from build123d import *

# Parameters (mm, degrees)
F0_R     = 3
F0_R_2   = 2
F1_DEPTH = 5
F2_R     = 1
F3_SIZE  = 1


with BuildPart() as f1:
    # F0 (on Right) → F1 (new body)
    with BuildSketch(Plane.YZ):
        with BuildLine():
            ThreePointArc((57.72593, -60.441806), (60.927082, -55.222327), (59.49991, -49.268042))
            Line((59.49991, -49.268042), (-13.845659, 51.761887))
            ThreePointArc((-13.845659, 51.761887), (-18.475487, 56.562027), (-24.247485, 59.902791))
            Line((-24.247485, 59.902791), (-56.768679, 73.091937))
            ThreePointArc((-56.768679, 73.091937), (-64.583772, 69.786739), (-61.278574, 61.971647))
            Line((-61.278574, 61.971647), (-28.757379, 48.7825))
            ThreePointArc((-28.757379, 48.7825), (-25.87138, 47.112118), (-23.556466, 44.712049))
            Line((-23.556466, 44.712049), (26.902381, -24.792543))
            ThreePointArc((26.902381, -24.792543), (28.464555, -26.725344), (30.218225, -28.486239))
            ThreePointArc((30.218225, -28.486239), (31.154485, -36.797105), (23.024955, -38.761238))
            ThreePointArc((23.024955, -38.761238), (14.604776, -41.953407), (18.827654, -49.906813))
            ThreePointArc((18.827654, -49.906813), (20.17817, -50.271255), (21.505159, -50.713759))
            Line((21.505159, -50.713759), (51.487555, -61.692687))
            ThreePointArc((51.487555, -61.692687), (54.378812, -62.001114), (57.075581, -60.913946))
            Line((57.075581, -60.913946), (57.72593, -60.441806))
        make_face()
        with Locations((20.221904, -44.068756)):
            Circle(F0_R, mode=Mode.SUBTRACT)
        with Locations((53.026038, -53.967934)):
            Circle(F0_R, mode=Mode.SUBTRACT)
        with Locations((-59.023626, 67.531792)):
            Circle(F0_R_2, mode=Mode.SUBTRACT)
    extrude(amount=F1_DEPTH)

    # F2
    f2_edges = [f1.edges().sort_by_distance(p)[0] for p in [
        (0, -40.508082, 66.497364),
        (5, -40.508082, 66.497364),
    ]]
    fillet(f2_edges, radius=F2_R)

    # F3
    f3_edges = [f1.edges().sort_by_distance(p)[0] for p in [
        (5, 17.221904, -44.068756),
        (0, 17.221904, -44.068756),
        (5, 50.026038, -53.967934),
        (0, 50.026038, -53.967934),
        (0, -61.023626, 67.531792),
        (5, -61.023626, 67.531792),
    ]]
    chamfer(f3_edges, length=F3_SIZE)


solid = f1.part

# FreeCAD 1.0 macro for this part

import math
import FreeCAD as App
import Part
import Sketcher
Q = App.Units.Quantity


def edges_at(feature, points):
    """Names of the edges that pass closest to the given points."""
    edges = feature.Shape.Edges
    near = lambda p: min(range(len(edges)), key=lambda i: edges[i].distToShape(Part.Vertex(*p))[0])
    return sorted({f"Edge{near(p) + 1}" for p in points})

doc = App.newDocument("Part")
body = doc.addObject("PartDesign::Body", "Body")

sketch1 = doc.addObject("Sketcher::SketchObject", "Sketch")
body.addObject(sketch1)
sketch1.AttachmentSupport = (doc.YZ_Plane, [""])
sketch1.MapMode = "FlatFace"
sketch1.addGeometry([
    Part.ArcOfCircle(Part.Circle(App.Vector(53.026037, -53.967934, 0), App.Vector(0, 0, 1), 8.000001), math.radians(-54.021151), math.radians(35.978838)),
    Part.LineSegment(App.Vector(59.49991, -49.268042, 0), App.Vector(-13.845659, 51.761887, 0)),
    Part.ArcOfCircle(Part.Circle(App.Vector(-33.267269, 37.662217, 0), App.Vector(0, 0, 1), 23.999992), math.radians(35.97884), math.radians(67.924721)),
    Part.LineSegment(App.Vector(-24.247485, 59.902791, 0), App.Vector(-56.768679, 73.091937, 0)),
    Part.ArcOfCircle(Part.Circle(App.Vector(-59.023627, 67.531792, 0), App.Vector(0, 0, 1), 6), math.radians(67.924711), math.radians(247.924717)),
    Part.LineSegment(App.Vector(-61.278574, 61.971647, 0), App.Vector(-28.757379, 48.7825, 0)),
    Part.ArcOfCircle(Part.Circle(App.Vector(-33.267275, 37.662207, 0), App.Vector(0, 0, 1), 12.000004), math.radians(35.978858), math.radians(67.924716)),
    Part.LineSegment(App.Vector(-23.556466, 44.712049, 0), App.Vector(26.902381, -24.792543, 0)),
    Part.ArcOfCircle(Part.Circle(App.Vector(46.324045, -10.692817, 0), App.Vector(0, 0, 1), 24.000069), math.radians(-144.021127), math.radians(-132.150003)),
    Part.ArcOfCircle(Part.Circle(App.Vector(25.976664, -33.172242, 0), App.Vector(0, 0, 1), 6.320559), math.radians(-117.839818), math.radians(47.850009)),
    Part.ArcOfCircle(Part.Circle(App.Vector(20.221905, -44.068756, 0), App.Vector(0, 0, 1), 6.002236), math.radians(62.160203), math.radians(256.568152)),
    Part.ArcOfCircle(Part.Circle(App.Vector(13.252799, -73.250135, 0), App.Vector(0, 0, 1), 23.999785), math.radians(69.888302), math.radians(76.568203)),
    Part.LineSegment(App.Vector(21.505159, -50.713759, 0), App.Vector(51.487555, -61.692687, 0)),
    Part.ArcOfCircle(Part.Circle(App.Vector(53.550661, -56.058537, 0), App.Vector(0, 0, 1), 6.000004), math.radians(-110.111662), math.radians(-54.021179)),
    Part.LineSegment(App.Vector(57.075581, -60.913946, 0), App.Vector(57.72593, -60.441806, 0)),
    Part.Circle(App.Vector(20.221904, -44.068756, 0), App.Vector(0, 0, 1), 3),
    Part.Circle(App.Vector(53.026038, -53.967934, 0), App.Vector(0, 0, 1), 3),
    Part.Circle(App.Vector(-59.023626, 67.531792, 0), App.Vector(0, 0, 1), 2),
], False)
sketch1.addConstraint([
    Sketcher.Constraint("Coincident", 0, 2, 1, 1),
    Sketcher.Constraint("Coincident", 1, 2, 2, 1),
    Sketcher.Constraint("Coincident", 2, 2, 3, 1),
    Sketcher.Constraint("Coincident", 3, 2, 4, 1),
    Sketcher.Constraint("Coincident", 4, 2, 5, 1),
    Sketcher.Constraint("Coincident", 5, 2, 6, 2),
    Sketcher.Constraint("Coincident", 6, 1, 7, 1),
    Sketcher.Constraint("Coincident", 7, 2, 8, 1),
    Sketcher.Constraint("Coincident", 8, 2, 9, 2),
    Sketcher.Constraint("Coincident", 9, 1, 10, 1),
    Sketcher.Constraint("Coincident", 10, 2, 11, 2),
    Sketcher.Constraint("Coincident", 11, 1, 12, 1),
    Sketcher.Constraint("Coincident", 12, 2, 13, 1),
    Sketcher.Constraint("Coincident", 13, 2, 14, 1),
    Sketcher.Constraint("Coincident", 14, 2, 0, 1),
    Sketcher.Constraint("Coincident", 15, 3, 10, 3),
    Sketcher.Constraint("Coincident", 16, 3, 0, 3),
    Sketcher.Constraint("Coincident", 17, 3, 4, 3),
    Sketcher.Constraint("Diameter", 15, Q("6 mm")),
    Sketcher.Constraint("Diameter", 16, Q("6 mm")),
    Sketcher.Constraint("Diameter", 17, Q("4 mm")),
    Sketcher.Constraint("Radius", 0, Q("8.000001 mm")),
    Sketcher.Constraint("Radius", 4, Q("6 mm")),
    Sketcher.Constraint("Radius", 8, Q("24.000069 mm")),
    Sketcher.Constraint("Radius", 9, Q("6.320559 mm")),
    Sketcher.Constraint("Radius", 2, Q("23.999992 mm")),
    Sketcher.Constraint("Radius", 6, Q("12.000004 mm")),
    Sketcher.Constraint("Radius", 10, Q("6.002236 mm")),
    Sketcher.Constraint("Radius", 11, Q("23.999785 mm")),
    Sketcher.Constraint("Radius", 13, Q("6.000004 mm")),
    Sketcher.Constraint("DistanceY", 2, 2, 17, 3, Q("7.629001 mm")),
    Sketcher.Constraint("DistanceY", 9, 1, 8, 2, Q("10.274999 mm")),
    Sketcher.Constraint("Distance", 5, Q("35.093899 mm")),
    Sketcher.Constraint("DistanceX", -1, 1, 11, 3, Q("13.252799 mm")),
    Sketcher.Constraint("DistanceY", -1, 1, 5, 2, Q("48.7825 mm")),
    Sketcher.Constraint("DistanceY", 11, 3, 0, 3, Q("19.282201 mm")),
    Sketcher.Constraint("DistanceY", 0, 2, 9, 3, Q("16.0958 mm")),
    Sketcher.Constraint("DistanceY", 9, 3, 7, 2, Q("8.379699 mm")),
    Sketcher.Constraint("DistanceX", 10, 2, 9, 1, Q("4.197301 mm")),
    Sketcher.Constraint("Distance", 1, Q("124.846382 mm")),
    Sketcher.Constraint("Distance", 7, Q("85.889368 mm")),
    Sketcher.Constraint("Distance", 12, Q("31.929311 mm")),
    Sketcher.Constraint("Distance", 14, Q("0.80366 mm")),
    Sketcher.Constraint("DistanceX", 2, 3, -1, 1, Q("33.267269 mm")),
    Sketcher.Constraint("DistanceY", 9, 3, -1, 1, Q("33.172242 mm")),
    Sketcher.Constraint("DistanceX", -1, 1, 13, 3, Q("53.550661 mm")),
    Sketcher.Constraint("DistanceY", -1, 1, 17, 3, Q("67.531792 mm")),
    Sketcher.Constraint("DistanceX", -1, 1, 0, 2, Q("59.49991 mm")),
    Sketcher.Constraint("DistanceX", 1, 2, -1, 1, Q("13.845659 mm")),
    Sketcher.Constraint("DistanceX", 3, 2, -1, 1, Q("56.768679 mm")),
    Sketcher.Constraint("DistanceX", 5, 2, -1, 1, Q("28.757379 mm")),
    Sketcher.Constraint("DistanceY", -1, 1, 6, 1, Q("44.712049 mm")),
    Sketcher.Constraint("DistanceX", -1, 1, 7, 2, Q("26.902381 mm")),
    Sketcher.Constraint("DistanceY", 8, 2, -1, 1, Q("28.486239 mm")),
    Sketcher.Constraint("DistanceX", -1, 1, 11, 1, Q("21.505159 mm")),
    Sketcher.Constraint("DistanceY", 11, 1, -1, 1, Q("50.713759 mm")),
    Sketcher.Constraint("DistanceX", -1, 1, 13, 2, Q("57.075581 mm")),
    Sketcher.Constraint("DistanceX", -1, 1, 14, 2, Q("57.72593 mm")),
    Sketcher.Constraint("DistanceX", 4, 3, 6, 3, Q("25.756352 mm")),
    Sketcher.Constraint("DistanceX", 8, 3, 0, 3, Q("6.701992 mm")),
])
pad1 = doc.addObject("PartDesign::Pad", "Pad")
body.addObject(pad1)
pad1.Profile = sketch1
pad1.Length = 5
doc.recompute()

fillet = doc.addObject("PartDesign::Fillet", "Fillet")
body.addObject(fillet)
fillet.Base = (pad1, edges_at(pad1, [(0, -40.508, 66.497), (5, -40.508, 66.497)]))
fillet.Radius = 1
doc.recompute()

chamfer = doc.addObject("PartDesign::Chamfer", "Chamfer")
body.addObject(chamfer)
chamfer.Base = (fillet, edges_at(fillet, [
    (5, 17.222, -44.069),
    (0, 17.222, -44.069),
    (5, 50.026, -53.968),
    (0, 50.026, -53.968),
    (0, -61.024, 67.532),
    (5, -61.024, 67.532),
]))
chamfer.Size = 1

doc.recompute()
